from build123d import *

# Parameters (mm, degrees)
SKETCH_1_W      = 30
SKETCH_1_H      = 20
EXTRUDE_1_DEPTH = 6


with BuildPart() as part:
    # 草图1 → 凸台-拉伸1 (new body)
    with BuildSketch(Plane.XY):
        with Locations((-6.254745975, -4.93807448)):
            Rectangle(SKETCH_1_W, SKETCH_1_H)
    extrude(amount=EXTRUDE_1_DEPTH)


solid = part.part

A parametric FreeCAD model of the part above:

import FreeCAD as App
import Part
import Sketcher
Q = App.Units.Quantity


def add_polygon(sketch, points):
    """Adds a closed chain of lines whose ends are joined by coincident constraints."""
    first, n = sketch.GeometryCount, len(points)
    for a, b in zip(points, points[1:] + points[:1]):
        sketch.addGeometry(Part.LineSegment(App.Vector(*a, 0), App.Vector(*b, 0)), False)
    for i in range(n):
        sketch.addConstraint(Sketcher.Constraint("Coincident", first + i, 2, first + (i + 1) % n, 1))

doc = App.newDocument("Part")
params = doc.addObject("Spreadsheet::Sheet", "Params")
for row, (alias, value) in enumerate([
    ("sketch1_width", "30 mm"),
    ("sketch1_height", "20 mm"),
    ("pad1_length", "6 mm"),
], start=1):
    params.set(f"A{row}", alias)
    params.set(f"B{row}", "=" + value)
    params.setAlias(f"B{row}", alias)

body = doc.addObject("PartDesign::Body", "Body")

sketch1 = body.newObject("Sketcher::SketchObject", "Sketch")
sketch1.AttachmentSupport = (doc.getObject("XY_Plane"), [""])
sketch1.MapMode = "FlatFace"
add_polygon(sketch1, [(-21, 5), (-21, -15), (9, -15), (9, 5)])
sketch1.addConstraint(Sketcher.Constraint("Vertical", 0))
sketch1.addConstraint(Sketcher.Constraint("Horizontal", 1))
sketch1.addConstraint(Sketcher.Constraint("Vertical", 2))
sketch1.addConstraint(Sketcher.Constraint("Horizontal", 3))
sketch1.addConstraint(Sketcher.Constraint("DistanceX", 1, 1, 1, 2, Q("30 mm")))
sketch1.addConstraint(Sketcher.Constraint("DistanceY", 0, 2, 0, 1, Q("20 mm")))
sketch1.addConstraint(Sketcher.Constraint("DistanceX", 0, 2, -1, 1, Q("21.254746 mm")))
sketch1.addConstraint(Sketcher.Constraint("DistanceY", 0, 2, -1, 1, Q("14.938074 mm")))
sketch1.setExpression("Constraints[8]", "Params.sketch1_width")
sketch1.setExpression("Constraints[9]", "Params.sketch1_height")
pad1 = body.newObject("PartDesign::Pad", "Pad")
pad1.Profile = sketch1
pad1.setExpression("Length", "Params.pad1_length")

doc.recompute()
